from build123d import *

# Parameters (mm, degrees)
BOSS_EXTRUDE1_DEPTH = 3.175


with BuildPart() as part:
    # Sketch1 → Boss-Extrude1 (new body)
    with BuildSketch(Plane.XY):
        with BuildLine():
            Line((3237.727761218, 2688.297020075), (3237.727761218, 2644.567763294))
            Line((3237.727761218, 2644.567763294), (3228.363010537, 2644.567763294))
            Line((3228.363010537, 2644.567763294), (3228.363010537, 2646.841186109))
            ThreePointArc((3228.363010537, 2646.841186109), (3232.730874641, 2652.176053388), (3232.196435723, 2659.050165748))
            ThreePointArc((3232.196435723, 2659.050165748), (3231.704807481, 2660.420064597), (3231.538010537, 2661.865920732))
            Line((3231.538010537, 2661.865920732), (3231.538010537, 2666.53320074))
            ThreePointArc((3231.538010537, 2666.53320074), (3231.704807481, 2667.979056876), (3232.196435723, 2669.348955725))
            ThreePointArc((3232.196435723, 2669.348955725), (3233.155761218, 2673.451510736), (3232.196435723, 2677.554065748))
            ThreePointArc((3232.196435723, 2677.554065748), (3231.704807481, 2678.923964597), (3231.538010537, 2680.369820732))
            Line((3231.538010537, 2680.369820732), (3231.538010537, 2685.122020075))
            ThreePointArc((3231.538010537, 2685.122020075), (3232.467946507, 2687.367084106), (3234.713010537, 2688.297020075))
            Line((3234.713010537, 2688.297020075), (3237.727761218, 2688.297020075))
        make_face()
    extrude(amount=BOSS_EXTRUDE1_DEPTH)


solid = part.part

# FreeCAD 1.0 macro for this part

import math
import FreeCAD as App
import Part
import Sketcher
Q = App.Units.Quantity

doc = App.newDocument("Part")
body = doc.addObject("PartDesign::Body", "Body")

sketch1 = body.newObject("Sketcher::SketchObject", "Sketch")
sketch1.AttachmentSupport = (doc.getObject("XY_Plane"), [""])
sketch1.MapMode = "FlatFace"
sketch1.addGeometry(Part.LineSegment(App.Vector(3237.7, 2644.6, 0), App.Vector(3237.7, 2688.3, 0)), False)
sketch1.addGeometry(Part.LineSegment(App.Vector(3237.7, 2688.3, 0), App.Vector(3234.7, 2688.3, 0)), False)
sketch1.addGeometry(Part.ArcOfCircle(Part.Circle(App.Vector(3234.7, 2685.1, 0), App.Vector(0, 0, 1), 3.2), math.radians(90), math.radians(180)), False)
sketch1.addGeometry(Part.LineSegment(App.Vector(3231.5, 2685.1, 0), App.Vector(3231.5, 2680.4, 0)), False)
sketch1.addGeometry(Part.ArcOfCircle(Part.Circle(App.Vector(3237.9, 2680.4, 0), App.Vector(0, 0, 1), 6.4), math.radians(-180), math.radians(-154)), False)
sketch1.addGeometry(Part.ArcOfCircle(Part.Circle(App.Vector(3223.9, 2673.5, 0), App.Vector(0, 0, 1), 9.3), math.radians(-26), math.radians(26)), False)
sketch1.addGeometry(Part.ArcOfCircle(Part.Circle(App.Vector(3237.9, 2666.5, 0), App.Vector(0, 0, 1), 6.4), math.radians(154), math.radians(180)), False)
sketch1.addGeometry(Part.LineSegment(App.Vector(3231.5, 2666.5, 0), App.Vector(3231.5, 2661.9, 0)), False)
sketch1.addGeometry(Part.ArcOfCircle(Part.Circle(App.Vector(3237.9, 2661.9, 0), App.Vector(0, 0, 1), 6.4), math.radians(-180), math.radians(-154)), False)
sketch1.addGeometry(Part.ArcOfCircle(Part.Circle(App.Vector(3223.9, 2654.9, 0), App.Vector(0, 0, 1), 9.3), math.radians(-61), math.radians(26)), False)
sketch1.addGeometry(Part.LineSegment(App.Vector(3228.4, 2646.8, 0), App.Vector(3228.4, 2644.6, 0)), False)
sketch1.addGeometry(Part.LineSegment(App.Vector(3228.4, 2644.6, 0), App.Vector(3237.7, 2644.6, 0)), False)
sketch1.addConstraint(Sketcher.Constraint("Coincident", 0, 2, 1, 1))
sketch1.addConstraint(Sketcher.Constraint("Tangent", 1, 2, 2, 1))
sketch1.addConstraint(Sketcher.Constraint("Tangent", 2, 2, 3, 1))
sketch1.addConstraint(Sketcher.Constraint("Tangent", 3, 2, 4, 1))
sketch1.addConstraint(Sketcher.Constraint("Tangent", 4, 2, 5, 2))
sketch1.addConstraint(Sketcher.Constraint("Tangent", 5, 1, 6, 1))
sketch1.addConstraint(Sketcher.Constraint("Tangent", 6, 2, 7, 1))
sketch1.addConstraint(Sketcher.Constraint("Tangent", 7, 2, 8, 1))
sketch1.addConstraint(Sketcher.Constraint("Tangent", 8, 2, 9, 2))
sketch1.addConstraint(Sketcher.Constraint("Coincident", 9, 1, 10, 1))
sketch1.addConstraint(Sketcher.Constraint("Coincident", 10, 2, 11, 1))
sketch1.addConstraint(Sketcher.Constraint("Coincident", 11, 2, 0, 1))
sketch1.addConstraint(Sketcher.Constraint("Vertical", 0))
sketch1.addConstraint(Sketcher.Constraint("Horizontal", 1))
sketch1.addConstraint(Sketcher.Constraint("Vertical", 3))
sketch1.addConstraint(Sketcher.Constraint("Vertical", 7))
sketch1.addConstraint(Sketcher.Constraint("Vertical", 10))
sketch1.addConstraint(Sketcher.Constraint("Horizontal", 11))
sketch1.addConstraint(Sketcher.Constraint("Equal", 4, 6))
sketch1.addConstraint(Sketcher.Constraint("Equal", 6, 8))
sketch1.addConstraint(Sketcher.Constraint("Equal", 5, 9))
sketch1.addConstraint(Sketcher.Constraint("Vertical", 4, 3, 6, 3))
sketch1.addConstraint(Sketcher.Constraint("Vertical", 5, 3, 9, 3))
sketch1.addConstraint(Sketcher.Constraint("Radius", 4, Q("0.25 in")))
sketch1.addConstraint(Sketcher.Constraint("Radius", 2, Q("0.125 in")))
sketch1.addConstraint(Sketcher.Constraint("Radius", 5, Q("9.25195 mm")))
sketch1.addConstraint(Sketcher.Constraint("DistanceX", 9, 1, 7, 2, Q("0.125 in")))
sketch1.addConstraint(Sketcher.Constraint("DistanceY", 3, 2, 3, 1, Q("4.752199 mm")))
sketch1.addConstraint(Sketcher.Constraint("DistanceY", 8, 3, 4, 3, Q("0.7285 in")))
sketch1.addConstraint(Sketcher.Constraint("DistanceX", 1, 2, 1, 1, Q("3.014751 mm")))
sketch1.addConstraint(Sketcher.Constraint("DistanceY", 7, 2, 7, 1, Q("4.66728 mm")))
sketch1.addConstraint(Sketcher.Constraint("DistanceY", -1, 1, 6, 3, Q("2666.533201 mm")))
sketch1.addConstraint(Sketcher.Constraint("DistanceY", 0, 1, 0, 2, Q("43.729257 mm")))
sketch1.addConstraint(Sketcher.Constraint("DistanceX", -1, 1, 2, 3, Q("3234.713011 mm")))
pad1 = body.newObject("PartDesign::Pad", "Pad")
pad1.Profile = sketch1
pad1.Length = Q("0.125 in")

doc.recompute()
